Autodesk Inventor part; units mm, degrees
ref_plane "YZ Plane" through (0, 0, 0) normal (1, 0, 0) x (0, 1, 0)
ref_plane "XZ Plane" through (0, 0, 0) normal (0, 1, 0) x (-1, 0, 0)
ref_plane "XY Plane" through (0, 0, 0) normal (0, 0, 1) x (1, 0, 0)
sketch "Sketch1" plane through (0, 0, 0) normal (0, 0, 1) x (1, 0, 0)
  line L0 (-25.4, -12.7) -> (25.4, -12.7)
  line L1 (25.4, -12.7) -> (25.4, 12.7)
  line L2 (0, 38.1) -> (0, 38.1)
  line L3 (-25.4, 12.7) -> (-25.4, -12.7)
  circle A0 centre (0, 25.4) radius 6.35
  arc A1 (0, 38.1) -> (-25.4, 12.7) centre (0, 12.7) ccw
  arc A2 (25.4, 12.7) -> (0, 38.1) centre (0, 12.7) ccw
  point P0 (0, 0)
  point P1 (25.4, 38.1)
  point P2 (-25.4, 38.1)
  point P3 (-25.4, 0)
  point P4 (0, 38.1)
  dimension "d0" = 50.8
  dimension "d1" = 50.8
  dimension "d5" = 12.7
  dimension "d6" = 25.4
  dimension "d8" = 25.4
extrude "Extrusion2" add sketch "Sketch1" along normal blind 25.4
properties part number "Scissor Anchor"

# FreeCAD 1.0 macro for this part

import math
import FreeCAD as App
import Part
import Sketcher
from FreeCAD import Vector
Q = App.Units.Quantity

doc = App.newDocument("Part")
body = doc.addObject("PartDesign::Body", "Body")

# Sketch on XY plane
sketch1 = body.newObject("Sketcher::SketchObject", "Sketch")
sketch1.AttachmentSupport = (doc.getObject("XY_Plane"), [""])
sketch1.MapMode = "FlatFace"
sketch1.addGeometry(Part.LineSegment(Vector(-25, 13, 0), Vector(-25, -13, 0)), False)
sketch1.addGeometry(Part.LineSegment(Vector(-25, -13, 0), Vector(25, -13, 0)), False)
sketch1.addGeometry(Part.LineSegment(Vector(25, -13, 0), Vector(25, 13, 0)), False)
sketch1.addGeometry(Part.ArcOfCircle(Part.Circle(Vector(0, 13, 0), Vector(0, 0, 1), 25), math.radians(0), math.radians(180)), False)
sketch1.addGeometry(Part.Circle(Vector(0, 25, 0), Vector(0, 0, 1), 6), False)
sketch1.addConstraint(Sketcher.Constraint("Coincident", 0, 2, 1, 1))
sketch1.addConstraint(Sketcher.Constraint("Coincident", 1, 2, 2, 1))
sketch1.addConstraint(Sketcher.Constraint("Tangent", 2, 2, 3, 1))
sketch1.addConstraint(Sketcher.Constraint("Tangent", 3, 2, 0, 1))
sketch1.addConstraint(Sketcher.Constraint("Vertical", 0))
sketch1.addConstraint(Sketcher.Constraint("Horizontal", 1))
sketch1.addConstraint(Sketcher.Constraint("Vertical", 2))
sketch1.addConstraint(Sketcher.Constraint("Symmetric", 0, 2, 2, 2, -1, 1))
sketch1.addConstraint(Sketcher.Constraint("PointOnObject", 4, 3, -2))
sketch1.addConstraint(Sketcher.Constraint("Radius", 3, Q("1 in")))
sketch1.addConstraint(Sketcher.Constraint("Diameter", 4, Q("0.5 in")))
sketch1.addConstraint(Sketcher.Constraint("DistanceY", 0, 2, 0, 1, Q("1 in")))
sketch1.addConstraint(Sketcher.Constraint("DistanceY", -1, 1, 4, 3, Q("1 in")))
pad1 = body.newObject("PartDesign::Pad", "Pad")
pad1.Profile = sketch1
pad1.Length = Q("1 in")

doc.recompute()
